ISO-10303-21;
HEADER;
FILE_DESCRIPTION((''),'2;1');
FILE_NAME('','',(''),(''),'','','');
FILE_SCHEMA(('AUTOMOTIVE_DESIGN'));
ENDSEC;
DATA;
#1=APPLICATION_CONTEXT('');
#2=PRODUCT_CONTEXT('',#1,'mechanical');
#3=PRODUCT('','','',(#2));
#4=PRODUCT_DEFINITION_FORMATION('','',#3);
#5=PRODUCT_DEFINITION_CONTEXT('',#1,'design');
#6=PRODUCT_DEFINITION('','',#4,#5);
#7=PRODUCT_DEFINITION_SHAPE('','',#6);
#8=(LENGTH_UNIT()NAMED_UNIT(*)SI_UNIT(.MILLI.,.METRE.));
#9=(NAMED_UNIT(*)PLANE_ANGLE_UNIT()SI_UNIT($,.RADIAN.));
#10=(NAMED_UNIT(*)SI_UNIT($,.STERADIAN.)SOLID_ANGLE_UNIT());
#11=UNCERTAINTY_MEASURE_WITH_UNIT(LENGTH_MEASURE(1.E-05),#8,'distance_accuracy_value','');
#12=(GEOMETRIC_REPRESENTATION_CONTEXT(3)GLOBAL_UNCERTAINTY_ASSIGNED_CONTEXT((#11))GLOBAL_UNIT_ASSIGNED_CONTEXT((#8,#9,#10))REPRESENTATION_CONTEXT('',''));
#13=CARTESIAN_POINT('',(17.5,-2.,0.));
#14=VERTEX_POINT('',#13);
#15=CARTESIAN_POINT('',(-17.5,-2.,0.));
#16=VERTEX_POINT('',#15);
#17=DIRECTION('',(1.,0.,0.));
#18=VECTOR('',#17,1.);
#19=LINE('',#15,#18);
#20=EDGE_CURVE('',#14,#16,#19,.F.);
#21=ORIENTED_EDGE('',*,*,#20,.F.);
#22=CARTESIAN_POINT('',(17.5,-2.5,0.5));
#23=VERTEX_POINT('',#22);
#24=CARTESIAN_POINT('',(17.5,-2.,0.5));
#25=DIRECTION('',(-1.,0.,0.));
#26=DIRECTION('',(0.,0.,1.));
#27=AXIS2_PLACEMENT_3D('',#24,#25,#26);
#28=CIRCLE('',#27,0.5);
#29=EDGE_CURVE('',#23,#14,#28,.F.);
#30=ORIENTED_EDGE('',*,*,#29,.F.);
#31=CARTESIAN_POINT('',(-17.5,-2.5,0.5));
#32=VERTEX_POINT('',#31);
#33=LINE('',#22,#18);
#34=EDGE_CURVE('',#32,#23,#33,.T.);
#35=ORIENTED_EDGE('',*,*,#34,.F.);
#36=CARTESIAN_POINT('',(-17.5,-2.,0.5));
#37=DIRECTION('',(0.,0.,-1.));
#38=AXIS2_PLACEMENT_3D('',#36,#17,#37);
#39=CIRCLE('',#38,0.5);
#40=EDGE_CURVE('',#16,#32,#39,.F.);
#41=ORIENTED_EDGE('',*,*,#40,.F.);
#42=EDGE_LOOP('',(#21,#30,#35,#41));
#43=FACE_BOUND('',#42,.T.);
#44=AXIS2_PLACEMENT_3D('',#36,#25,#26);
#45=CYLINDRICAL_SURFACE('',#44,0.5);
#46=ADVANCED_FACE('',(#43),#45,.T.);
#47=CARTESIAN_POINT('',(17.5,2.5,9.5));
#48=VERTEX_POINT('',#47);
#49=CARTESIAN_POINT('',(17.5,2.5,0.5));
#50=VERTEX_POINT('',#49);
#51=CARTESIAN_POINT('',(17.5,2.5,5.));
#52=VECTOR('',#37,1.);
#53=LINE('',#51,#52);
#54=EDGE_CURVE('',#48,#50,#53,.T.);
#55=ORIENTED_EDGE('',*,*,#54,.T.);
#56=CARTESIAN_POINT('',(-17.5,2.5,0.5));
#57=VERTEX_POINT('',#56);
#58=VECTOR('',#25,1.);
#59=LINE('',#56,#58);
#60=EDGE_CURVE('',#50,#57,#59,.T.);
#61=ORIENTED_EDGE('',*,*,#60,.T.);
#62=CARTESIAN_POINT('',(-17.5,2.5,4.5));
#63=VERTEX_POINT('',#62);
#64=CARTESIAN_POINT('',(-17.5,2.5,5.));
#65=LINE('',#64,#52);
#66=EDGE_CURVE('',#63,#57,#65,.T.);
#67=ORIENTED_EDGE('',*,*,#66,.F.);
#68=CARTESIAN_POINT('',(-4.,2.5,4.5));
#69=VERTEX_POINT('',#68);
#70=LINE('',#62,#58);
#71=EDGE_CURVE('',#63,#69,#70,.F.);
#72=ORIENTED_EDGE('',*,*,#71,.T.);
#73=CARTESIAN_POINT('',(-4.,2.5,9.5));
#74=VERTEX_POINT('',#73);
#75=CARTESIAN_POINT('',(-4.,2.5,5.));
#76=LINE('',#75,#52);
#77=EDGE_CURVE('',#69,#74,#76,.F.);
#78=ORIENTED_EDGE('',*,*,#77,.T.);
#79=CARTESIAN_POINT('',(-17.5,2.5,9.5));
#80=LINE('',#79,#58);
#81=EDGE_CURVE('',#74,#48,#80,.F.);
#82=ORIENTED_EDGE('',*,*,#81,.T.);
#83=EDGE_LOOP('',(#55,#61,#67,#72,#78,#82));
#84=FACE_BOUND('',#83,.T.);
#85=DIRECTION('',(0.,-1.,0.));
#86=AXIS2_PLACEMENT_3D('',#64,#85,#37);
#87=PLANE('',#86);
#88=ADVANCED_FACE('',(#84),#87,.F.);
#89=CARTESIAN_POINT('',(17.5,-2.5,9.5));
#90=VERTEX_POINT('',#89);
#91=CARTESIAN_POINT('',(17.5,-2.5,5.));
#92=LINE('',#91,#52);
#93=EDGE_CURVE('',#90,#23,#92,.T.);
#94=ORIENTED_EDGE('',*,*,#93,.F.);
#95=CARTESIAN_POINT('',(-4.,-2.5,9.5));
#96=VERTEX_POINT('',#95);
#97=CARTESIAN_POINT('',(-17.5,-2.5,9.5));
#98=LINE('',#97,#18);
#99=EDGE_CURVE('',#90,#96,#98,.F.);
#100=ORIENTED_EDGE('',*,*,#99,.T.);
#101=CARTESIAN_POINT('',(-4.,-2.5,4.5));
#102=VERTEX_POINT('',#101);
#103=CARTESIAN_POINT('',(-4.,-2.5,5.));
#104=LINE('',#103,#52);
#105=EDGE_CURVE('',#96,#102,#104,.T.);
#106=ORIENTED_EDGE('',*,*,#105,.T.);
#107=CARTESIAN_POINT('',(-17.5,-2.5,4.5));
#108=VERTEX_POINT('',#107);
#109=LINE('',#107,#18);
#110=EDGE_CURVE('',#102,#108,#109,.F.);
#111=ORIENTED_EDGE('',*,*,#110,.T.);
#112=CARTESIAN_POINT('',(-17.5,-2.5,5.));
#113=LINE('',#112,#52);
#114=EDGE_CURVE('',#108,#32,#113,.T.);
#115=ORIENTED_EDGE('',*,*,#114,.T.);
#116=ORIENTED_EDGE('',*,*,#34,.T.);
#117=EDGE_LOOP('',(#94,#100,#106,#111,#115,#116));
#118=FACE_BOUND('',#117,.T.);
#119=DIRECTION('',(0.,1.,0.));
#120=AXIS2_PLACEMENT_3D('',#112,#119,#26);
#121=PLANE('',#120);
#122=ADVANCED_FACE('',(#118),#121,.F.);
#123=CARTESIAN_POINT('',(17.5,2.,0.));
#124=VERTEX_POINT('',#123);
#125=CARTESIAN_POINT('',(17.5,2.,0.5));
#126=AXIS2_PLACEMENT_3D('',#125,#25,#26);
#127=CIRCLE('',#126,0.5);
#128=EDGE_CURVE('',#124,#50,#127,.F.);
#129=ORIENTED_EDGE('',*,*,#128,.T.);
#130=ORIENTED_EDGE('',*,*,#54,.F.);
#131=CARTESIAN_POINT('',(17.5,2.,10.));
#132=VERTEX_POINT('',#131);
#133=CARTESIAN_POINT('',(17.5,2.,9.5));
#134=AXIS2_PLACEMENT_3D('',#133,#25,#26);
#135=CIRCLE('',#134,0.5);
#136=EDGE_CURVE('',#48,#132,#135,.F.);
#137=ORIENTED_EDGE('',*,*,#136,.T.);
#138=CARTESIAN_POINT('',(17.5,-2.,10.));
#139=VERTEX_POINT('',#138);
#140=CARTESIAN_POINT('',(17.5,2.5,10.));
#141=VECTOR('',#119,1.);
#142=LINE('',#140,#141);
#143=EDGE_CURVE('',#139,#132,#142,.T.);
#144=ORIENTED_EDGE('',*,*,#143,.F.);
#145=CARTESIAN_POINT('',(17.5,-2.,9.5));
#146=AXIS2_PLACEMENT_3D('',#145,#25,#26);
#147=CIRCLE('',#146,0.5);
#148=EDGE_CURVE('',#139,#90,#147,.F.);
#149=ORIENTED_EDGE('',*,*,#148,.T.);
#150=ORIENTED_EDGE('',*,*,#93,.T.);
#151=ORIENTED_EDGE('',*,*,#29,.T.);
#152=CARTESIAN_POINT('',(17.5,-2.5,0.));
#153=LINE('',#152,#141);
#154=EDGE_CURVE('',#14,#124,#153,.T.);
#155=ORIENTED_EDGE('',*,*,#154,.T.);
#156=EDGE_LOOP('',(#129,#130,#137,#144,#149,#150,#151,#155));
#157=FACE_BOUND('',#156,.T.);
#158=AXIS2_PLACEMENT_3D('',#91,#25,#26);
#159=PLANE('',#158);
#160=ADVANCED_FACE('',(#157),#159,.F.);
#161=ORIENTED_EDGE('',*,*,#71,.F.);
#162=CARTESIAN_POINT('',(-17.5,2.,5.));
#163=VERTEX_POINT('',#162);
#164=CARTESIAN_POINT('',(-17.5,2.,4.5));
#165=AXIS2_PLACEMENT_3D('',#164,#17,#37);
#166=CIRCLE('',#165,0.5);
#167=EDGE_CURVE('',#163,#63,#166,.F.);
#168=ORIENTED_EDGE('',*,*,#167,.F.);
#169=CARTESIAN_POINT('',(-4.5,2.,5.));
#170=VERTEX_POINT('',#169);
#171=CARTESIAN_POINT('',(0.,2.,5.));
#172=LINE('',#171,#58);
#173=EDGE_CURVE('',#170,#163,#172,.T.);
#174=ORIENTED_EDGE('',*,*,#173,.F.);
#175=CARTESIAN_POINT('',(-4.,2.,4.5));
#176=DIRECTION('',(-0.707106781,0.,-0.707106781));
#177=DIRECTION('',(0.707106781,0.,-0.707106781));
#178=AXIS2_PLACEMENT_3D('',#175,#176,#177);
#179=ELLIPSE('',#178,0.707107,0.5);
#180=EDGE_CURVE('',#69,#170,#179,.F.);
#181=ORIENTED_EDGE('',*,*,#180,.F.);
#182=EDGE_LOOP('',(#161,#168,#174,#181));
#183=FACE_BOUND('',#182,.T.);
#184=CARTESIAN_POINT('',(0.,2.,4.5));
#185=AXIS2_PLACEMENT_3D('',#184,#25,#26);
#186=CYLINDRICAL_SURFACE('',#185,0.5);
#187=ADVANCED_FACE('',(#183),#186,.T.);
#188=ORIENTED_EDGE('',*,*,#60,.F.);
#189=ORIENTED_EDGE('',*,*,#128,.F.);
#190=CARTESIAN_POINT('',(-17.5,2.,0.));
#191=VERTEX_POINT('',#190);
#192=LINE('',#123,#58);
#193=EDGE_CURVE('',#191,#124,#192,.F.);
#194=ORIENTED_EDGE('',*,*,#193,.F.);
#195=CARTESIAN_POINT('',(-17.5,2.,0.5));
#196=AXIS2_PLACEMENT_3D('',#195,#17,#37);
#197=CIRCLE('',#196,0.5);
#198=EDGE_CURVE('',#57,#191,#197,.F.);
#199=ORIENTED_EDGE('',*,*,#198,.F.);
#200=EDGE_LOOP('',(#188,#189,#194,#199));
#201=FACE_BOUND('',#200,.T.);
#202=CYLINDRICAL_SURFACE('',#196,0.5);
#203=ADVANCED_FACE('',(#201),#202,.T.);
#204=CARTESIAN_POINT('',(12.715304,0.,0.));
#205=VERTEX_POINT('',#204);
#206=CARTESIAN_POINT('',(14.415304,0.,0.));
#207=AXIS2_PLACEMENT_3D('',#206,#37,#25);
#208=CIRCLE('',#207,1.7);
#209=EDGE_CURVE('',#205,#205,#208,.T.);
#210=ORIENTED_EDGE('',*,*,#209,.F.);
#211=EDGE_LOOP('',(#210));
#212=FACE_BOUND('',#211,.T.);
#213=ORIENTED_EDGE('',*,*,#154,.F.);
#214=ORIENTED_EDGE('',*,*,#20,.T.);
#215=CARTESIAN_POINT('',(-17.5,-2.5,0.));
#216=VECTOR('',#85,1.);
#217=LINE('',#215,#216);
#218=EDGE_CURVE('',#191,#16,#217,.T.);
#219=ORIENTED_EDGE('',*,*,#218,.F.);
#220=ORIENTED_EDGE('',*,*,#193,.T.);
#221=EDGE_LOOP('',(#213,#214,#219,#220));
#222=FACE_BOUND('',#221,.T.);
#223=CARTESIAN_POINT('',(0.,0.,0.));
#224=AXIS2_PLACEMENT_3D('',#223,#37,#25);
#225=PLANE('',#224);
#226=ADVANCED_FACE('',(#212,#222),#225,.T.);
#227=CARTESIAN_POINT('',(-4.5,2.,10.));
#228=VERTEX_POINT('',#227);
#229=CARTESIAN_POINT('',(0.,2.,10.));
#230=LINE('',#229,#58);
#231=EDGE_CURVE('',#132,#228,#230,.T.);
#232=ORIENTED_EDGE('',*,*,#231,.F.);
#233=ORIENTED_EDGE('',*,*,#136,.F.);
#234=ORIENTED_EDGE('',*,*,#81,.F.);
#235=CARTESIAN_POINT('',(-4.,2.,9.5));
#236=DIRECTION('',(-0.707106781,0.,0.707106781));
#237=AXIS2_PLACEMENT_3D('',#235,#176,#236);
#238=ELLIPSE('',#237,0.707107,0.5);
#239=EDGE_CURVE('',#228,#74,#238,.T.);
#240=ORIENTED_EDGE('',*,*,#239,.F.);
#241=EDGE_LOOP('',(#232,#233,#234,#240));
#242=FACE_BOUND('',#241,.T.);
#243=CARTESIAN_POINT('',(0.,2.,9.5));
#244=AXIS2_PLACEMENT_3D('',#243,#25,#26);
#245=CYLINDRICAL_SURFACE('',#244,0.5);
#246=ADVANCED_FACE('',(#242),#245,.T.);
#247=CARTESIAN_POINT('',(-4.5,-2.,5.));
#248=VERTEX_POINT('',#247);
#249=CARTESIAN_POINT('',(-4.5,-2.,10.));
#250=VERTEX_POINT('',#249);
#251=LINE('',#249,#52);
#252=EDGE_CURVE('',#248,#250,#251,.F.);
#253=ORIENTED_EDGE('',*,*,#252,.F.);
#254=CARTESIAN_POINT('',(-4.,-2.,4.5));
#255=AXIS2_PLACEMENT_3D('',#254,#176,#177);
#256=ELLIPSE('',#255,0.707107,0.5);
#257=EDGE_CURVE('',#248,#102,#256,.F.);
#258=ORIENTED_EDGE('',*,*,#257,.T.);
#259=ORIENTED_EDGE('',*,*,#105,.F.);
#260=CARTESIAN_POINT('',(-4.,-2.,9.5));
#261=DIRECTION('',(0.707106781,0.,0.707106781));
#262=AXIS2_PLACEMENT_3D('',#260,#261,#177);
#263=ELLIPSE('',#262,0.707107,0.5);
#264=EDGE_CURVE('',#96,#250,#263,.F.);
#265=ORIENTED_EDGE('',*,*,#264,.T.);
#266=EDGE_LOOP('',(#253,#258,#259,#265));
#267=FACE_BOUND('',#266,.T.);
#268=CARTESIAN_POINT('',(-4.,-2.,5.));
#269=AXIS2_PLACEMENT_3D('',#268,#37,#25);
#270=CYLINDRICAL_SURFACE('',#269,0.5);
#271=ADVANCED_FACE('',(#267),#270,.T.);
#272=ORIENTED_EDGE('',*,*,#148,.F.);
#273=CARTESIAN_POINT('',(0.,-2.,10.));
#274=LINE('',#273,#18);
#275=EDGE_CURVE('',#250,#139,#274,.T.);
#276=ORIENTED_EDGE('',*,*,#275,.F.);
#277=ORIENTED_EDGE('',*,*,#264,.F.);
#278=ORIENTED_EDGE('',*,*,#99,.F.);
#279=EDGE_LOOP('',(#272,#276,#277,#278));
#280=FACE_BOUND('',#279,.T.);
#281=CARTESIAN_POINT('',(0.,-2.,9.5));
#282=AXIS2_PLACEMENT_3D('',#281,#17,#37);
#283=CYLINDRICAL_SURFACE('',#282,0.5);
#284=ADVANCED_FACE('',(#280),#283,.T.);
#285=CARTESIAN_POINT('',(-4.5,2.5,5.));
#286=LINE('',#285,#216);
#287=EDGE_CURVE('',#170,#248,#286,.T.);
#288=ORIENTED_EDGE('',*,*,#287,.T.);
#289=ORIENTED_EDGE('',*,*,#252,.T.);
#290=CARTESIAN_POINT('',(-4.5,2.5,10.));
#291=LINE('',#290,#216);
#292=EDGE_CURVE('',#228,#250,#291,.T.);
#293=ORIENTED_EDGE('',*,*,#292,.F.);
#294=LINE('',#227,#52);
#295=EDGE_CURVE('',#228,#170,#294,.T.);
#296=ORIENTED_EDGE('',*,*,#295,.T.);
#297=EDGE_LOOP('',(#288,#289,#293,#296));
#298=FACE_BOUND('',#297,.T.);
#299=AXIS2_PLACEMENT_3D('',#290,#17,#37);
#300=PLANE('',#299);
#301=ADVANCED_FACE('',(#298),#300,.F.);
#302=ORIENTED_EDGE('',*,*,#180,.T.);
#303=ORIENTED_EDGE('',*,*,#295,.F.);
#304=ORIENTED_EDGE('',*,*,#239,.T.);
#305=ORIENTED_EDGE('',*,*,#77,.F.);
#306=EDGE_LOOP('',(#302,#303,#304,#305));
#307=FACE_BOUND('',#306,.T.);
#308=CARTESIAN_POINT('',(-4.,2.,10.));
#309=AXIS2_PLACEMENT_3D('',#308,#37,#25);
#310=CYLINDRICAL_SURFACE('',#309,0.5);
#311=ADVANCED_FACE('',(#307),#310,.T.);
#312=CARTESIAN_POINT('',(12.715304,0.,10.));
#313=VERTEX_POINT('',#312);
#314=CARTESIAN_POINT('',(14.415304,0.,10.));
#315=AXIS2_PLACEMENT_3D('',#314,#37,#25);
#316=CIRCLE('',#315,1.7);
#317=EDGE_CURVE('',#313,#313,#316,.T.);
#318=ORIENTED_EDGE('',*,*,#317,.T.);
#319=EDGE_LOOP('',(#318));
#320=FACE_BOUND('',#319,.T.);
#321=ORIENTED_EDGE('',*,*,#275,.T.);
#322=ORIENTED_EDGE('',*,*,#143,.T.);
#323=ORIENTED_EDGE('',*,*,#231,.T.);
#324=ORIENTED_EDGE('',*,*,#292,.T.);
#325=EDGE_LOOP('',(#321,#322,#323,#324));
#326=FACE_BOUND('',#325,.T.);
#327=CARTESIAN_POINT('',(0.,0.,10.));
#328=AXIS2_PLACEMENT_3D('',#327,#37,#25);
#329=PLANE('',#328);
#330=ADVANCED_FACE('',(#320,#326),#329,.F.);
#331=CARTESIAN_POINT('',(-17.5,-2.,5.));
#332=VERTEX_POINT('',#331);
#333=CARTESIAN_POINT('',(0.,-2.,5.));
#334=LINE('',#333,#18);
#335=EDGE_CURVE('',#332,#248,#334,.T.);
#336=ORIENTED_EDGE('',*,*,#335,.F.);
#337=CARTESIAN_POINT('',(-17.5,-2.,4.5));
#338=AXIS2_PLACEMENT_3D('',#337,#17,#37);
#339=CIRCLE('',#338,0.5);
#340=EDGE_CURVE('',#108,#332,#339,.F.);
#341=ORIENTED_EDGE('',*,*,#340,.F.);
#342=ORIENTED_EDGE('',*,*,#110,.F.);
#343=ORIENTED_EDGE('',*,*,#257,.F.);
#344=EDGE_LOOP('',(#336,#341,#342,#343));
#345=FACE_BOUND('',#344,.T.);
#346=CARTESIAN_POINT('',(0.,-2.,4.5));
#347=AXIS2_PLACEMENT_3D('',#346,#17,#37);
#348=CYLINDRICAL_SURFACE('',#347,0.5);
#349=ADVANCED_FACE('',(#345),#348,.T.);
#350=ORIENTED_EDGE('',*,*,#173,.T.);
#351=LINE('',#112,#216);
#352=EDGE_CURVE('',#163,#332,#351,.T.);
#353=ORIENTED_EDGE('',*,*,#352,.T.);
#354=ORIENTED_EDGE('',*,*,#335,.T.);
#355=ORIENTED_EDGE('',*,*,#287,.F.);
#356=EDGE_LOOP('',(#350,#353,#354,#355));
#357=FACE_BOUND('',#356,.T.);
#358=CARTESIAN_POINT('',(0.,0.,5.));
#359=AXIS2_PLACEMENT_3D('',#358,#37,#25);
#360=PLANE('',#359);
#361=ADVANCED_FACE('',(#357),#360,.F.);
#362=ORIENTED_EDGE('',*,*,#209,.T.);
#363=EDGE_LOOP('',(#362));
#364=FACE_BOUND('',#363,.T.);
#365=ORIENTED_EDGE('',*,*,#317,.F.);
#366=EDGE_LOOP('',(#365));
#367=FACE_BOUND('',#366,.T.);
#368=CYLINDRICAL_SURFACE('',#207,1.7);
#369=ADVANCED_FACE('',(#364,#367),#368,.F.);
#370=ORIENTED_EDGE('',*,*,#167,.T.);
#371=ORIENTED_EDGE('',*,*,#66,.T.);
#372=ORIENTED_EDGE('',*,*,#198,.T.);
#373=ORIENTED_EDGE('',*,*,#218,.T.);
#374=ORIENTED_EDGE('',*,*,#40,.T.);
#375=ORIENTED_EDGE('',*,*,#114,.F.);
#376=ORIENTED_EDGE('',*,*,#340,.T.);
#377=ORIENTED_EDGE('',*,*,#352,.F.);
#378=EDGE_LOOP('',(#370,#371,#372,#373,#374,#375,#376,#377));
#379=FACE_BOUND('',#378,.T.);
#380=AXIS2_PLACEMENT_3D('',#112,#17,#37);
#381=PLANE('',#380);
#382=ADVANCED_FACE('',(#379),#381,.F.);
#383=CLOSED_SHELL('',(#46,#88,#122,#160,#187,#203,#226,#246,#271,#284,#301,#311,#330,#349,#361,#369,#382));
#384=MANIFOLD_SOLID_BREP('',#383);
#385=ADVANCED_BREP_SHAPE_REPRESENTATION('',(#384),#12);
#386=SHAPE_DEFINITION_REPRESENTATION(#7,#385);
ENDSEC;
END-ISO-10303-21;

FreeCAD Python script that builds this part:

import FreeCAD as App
import Part
import Sketcher
Q = App.Units.Quantity


def edges_at(feature, points):
    """Names of the edges that pass closest to the given points."""
    edges = feature.Shape.Edges
    near = lambda p: min(range(len(edges)), key=lambda i: edges[i].distToShape(Part.Vertex(*p))[0])
    return sorted({f"Edge{near(p) + 1}" for p in points})


def add_polygon(sketch, points):
    """Adds a closed chain of lines whose ends are joined by coincident constraints."""
    first, n = sketch.GeometryCount, len(points)
    for a, b in zip(points, points[1:] + points[:1]):
        sketch.addGeometry(Part.LineSegment(App.Vector(*a, 0), App.Vector(*b, 0)), False)
    for i in range(n):
        sketch.addConstraint(Sketcher.Constraint("Coincident", first + i, 2, first + (i + 1) % n, 1))

doc = App.newDocument("Part")
body = doc.addObject("PartDesign::Body", "Body")

# Sketch on XY plane
sketch1 = body.newObject("Sketcher::SketchObject", "Sketch")
sketch1.AttachmentSupport = (doc.getObject("XY_Plane"), [""])
sketch1.MapMode = "FlatFace"
add_polygon(sketch1, [(-18, 2), (-18, -2), (18, -2), (18, 2)])  # lines 0-3
sketch1.addConstraint([
    Sketcher.Constraint("Vertical", 0),
    Sketcher.Constraint("Horizontal", 1),
    Sketcher.Constraint("Vertical", 2),
    Sketcher.Constraint("Horizontal", 3),
    Sketcher.Constraint("Symmetric", 0, 2, 2, 2, -1, 1),
    Sketcher.Constraint("DistanceX", 1, 1, 1, 2, Q("35 mm")),
    Sketcher.Constraint("DistanceY", 0, 2, 0, 1, Q("5 mm")),
])
pad1 = body.newObject("PartDesign::Pad", "Pad")
pad1.Profile = sketch1
pad1.Length = 5

# Sketch on XY plane
sketch2 = body.newObject("Sketcher::SketchObject", "Sketch001")
sketch2.AttachmentSupport = (doc.getObject("XY_Plane"), [""])
sketch2.MapMode = "FlatFace"
sketch2.AttachmentOffset = App.Placement(App.Vector(0, 0, 5), App.Rotation())
add_polygon(sketch2, [(-4, 2), (-4, -2), (18, -2), (18, 2)])  # lines 0-3
sketch2.addConstraint([
    Sketcher.Constraint("Vertical", 0),
    Sketcher.Constraint("Horizontal", 1),
    Sketcher.Constraint("Vertical", 2),
    Sketcher.Constraint("Horizontal", 3),
    Sketcher.Constraint("DistanceX", 1, 1, 1, 2, Q("22 mm")),
    Sketcher.Constraint("DistanceY", 0, 2, 0, 1, Q("5 mm")),
    Sketcher.Constraint("DistanceX", 0, 2, -1, 1, Q("4.5 mm")),
    Sketcher.Constraint("DistanceY", 0, 2, -1, 1, Q("2.5 mm")),
])
pad2 = body.newObject("PartDesign::Pad", "Pad001")
pad2.Profile = sketch2
pad2.Length = 5
doc.recompute()

fillet = body.newObject("PartDesign::Fillet", "Fillet")
fillet.Base = (pad2, edges_at(pad2, [
    (-11, 2.5, 5),
    (-4.5, 2.5, 7.5),
    (-4.5, -2.5, 7.5),
    (-11, -2.5, 5),
    (6.5, 2.5, 10),
    (6.5, -2.5, 10),
    (0, -2.5, 0),
    (0, 2.5, 0),
]))
fillet.Radius = 0.5

# Sketch on XY plane
sketch3 = body.newObject("Sketcher::SketchObject", "Sketch002")
sketch3.AttachmentSupport = (doc.getObject("XY_Plane"), [""])
sketch3.MapMode = "FlatFace"
sketch3.addGeometry(Part.Circle(App.Vector(14.4, 0, 0), App.Vector(0, 0, 1), 1.7), False)
sketch3.addConstraint([
    Sketcher.Constraint("PointOnObject", 0, 3, -1),
    Sketcher.Constraint("Diameter", 0, Q("3.4 mm")),
    Sketcher.Constraint("DistanceX", -1, 1, 0, 3, Q("14.415304 mm")),
])
doc.recompute()
hole = body.newObject("PartDesign::Hole", "Hole")
hole.Profile = sketch3
hole.ThreadType = "None"
hole.Diameter = 3.4
hole.DepthType = "ThroughAll"
hole.Reversed = True

doc.recompute()
